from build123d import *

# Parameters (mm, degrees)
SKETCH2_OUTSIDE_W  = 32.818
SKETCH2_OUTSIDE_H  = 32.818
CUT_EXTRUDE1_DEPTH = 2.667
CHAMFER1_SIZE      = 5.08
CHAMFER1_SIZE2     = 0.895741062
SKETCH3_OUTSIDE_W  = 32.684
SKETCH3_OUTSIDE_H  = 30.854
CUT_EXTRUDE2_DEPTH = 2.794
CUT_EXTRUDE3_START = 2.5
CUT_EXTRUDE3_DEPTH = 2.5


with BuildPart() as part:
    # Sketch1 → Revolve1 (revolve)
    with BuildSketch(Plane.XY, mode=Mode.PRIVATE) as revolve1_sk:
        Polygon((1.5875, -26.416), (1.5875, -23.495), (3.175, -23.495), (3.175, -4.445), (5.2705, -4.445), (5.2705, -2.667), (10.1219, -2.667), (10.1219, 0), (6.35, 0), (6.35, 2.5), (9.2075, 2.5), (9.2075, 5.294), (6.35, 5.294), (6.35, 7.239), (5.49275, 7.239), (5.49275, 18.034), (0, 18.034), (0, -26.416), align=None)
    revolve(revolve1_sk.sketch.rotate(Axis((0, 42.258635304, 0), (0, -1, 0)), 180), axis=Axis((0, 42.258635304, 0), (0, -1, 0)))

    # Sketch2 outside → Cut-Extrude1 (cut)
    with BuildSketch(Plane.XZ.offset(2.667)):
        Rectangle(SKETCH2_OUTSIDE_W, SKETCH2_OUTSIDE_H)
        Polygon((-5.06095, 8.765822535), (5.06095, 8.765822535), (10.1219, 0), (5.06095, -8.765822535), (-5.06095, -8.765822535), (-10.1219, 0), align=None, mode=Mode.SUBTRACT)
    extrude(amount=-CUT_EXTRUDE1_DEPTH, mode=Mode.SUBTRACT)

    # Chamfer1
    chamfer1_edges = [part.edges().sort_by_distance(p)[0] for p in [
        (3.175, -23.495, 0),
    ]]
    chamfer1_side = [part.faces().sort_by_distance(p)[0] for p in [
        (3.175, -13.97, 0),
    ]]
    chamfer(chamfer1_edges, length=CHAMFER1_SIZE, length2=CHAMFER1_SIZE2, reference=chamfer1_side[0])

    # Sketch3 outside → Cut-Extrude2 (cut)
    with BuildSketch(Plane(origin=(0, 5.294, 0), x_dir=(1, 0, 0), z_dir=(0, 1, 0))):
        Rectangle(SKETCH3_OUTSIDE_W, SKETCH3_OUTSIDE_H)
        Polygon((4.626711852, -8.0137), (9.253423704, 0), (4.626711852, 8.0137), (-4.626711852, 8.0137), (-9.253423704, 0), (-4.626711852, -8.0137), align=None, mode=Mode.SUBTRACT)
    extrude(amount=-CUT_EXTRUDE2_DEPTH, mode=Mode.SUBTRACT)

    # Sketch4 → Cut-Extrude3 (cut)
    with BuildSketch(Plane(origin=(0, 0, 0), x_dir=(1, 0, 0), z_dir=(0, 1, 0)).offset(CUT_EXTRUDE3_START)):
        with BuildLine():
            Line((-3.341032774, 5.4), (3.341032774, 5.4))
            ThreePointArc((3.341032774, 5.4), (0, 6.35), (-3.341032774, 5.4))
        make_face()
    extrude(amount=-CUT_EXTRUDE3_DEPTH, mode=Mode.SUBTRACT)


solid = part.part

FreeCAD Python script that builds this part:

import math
import FreeCAD as App
import Part
import Sketcher
from FreeCAD import Vector
Q = App.Units.Quantity


def edges_at(feature, points):
    """Names of the edges that pass closest to the given points."""
    edges = feature.Shape.Edges
    near = lambda p: min(range(len(edges)), key=lambda i: edges[i].distToShape(Part.Vertex(*p))[0])
    return sorted({f"Edge{near(p) + 1}" for p in points})


def add_polygon(sketch, points):
    """Adds a closed chain of lines whose ends are joined by coincident constraints."""
    first, n = sketch.GeometryCount, len(points)
    for a, b in zip(points, points[1:] + points[:1]):
        sketch.addGeometry(Part.LineSegment(App.Vector(*a, 0), App.Vector(*b, 0)), False)
    for i in range(n):
        sketch.addConstraint(Sketcher.Constraint("Coincident", first + i, 2, first + (i + 1) % n, 1))

doc = App.newDocument("Part")
body = doc.addObject("PartDesign::Body", "Body")

# Sketch on XY plane
sketch1 = body.newObject("Sketcher::SketchObject", "Sketch")
sketch1.AttachmentSupport = (doc.getObject("XY_Plane"), [""])
sketch1.MapMode = "FlatFace"
add_polygon(sketch1, [(1.6, -26.4), (1.6, -23.5), (3.2, -23.5), (3.2, -4.4), (5.3, -4.4), (5.3, -2.7), (10.1, -2.7), (10.1, 0), (6.3, 0), (6.3, 2.5), (9.2, 2.5), (9.2, 5.3), (6.3, 5.3), (6.3, 7.2), (5.5, 7.2), (5.5, 18), (0, 18), (0, -26.4)])  # lines 0-17
sketch1.addConstraint(Sketcher.Constraint("Vertical", 0))
sketch1.addConstraint(Sketcher.Constraint("Horizontal", 1))
sketch1.addConstraint(Sketcher.Constraint("Vertical", 2))
sketch1.addConstraint(Sketcher.Constraint("Horizontal", 3))
sketch1.addConstraint(Sketcher.Constraint("Vertical", 4))
sketch1.addConstraint(Sketcher.Constraint("Horizontal", 5))
sketch1.addConstraint(Sketcher.Constraint("Vertical", 6))
sketch1.addConstraint(Sketcher.Constraint("Horizontal", 7))
sketch1.addConstraint(Sketcher.Constraint("Vertical", 8))
sketch1.addConstraint(Sketcher.Constraint("Horizontal", 9))
sketch1.addConstraint(Sketcher.Constraint("Vertical", 10))
sketch1.addConstraint(Sketcher.Constraint("Horizontal", 11))
sketch1.addConstraint(Sketcher.Constraint("Vertical", 12))
sketch1.addConstraint(Sketcher.Constraint("Horizontal", 13))
sketch1.addConstraint(Sketcher.Constraint("Vertical", 14))
sketch1.addConstraint(Sketcher.Constraint("Horizontal", 15))
sketch1.addConstraint(Sketcher.Constraint("Vertical", 16))
sketch1.addConstraint(Sketcher.Constraint("Horizontal", 17))
sketch1.addConstraint(Sketcher.Constraint("PointOnObject", 6, 2, -1))
sketch1.addConstraint(Sketcher.Constraint("PointOnObject", 15, 2, -2))
sketch1.addConstraint(Sketcher.Constraint("Vertical", 8, 2, 11, 2))
sketch1.addConstraint(Sketcher.Constraint("Equal", 1, 17))
sketch1.addConstraint(Sketcher.Constraint("DistanceY", 2, 1, 2, 2, Q("0.75 in")))
sketch1.addConstraint(Sketcher.Constraint("DistanceY", 4, 1, 4, 2, Q("0.07 in")))
sketch1.addConstraint(Sketcher.Constraint("DistanceY", 10, 1, 10, 2, Q("0.11 in")))
sketch1.addConstraint(Sketcher.Constraint("DistanceY", 16, 2, 16, 1, Q("1.75 in")))
sketch1.addConstraint(Sketcher.Constraint("DistanceX", 1, 1, 1, 2, Q("0.0625 in")))
sketch1.addConstraint(Sketcher.Constraint("DistanceX", 5, 1, 5, 2, Q("0.191 in")))
sketch1.addConstraint(Sketcher.Constraint("DistanceY", 0, 1, 0, 2, Q("0.115 in")))
sketch1.addConstraint(Sketcher.Constraint("DistanceY", 6, 1, 6, 2, Q("0.105 in")))
sketch1.addConstraint(Sketcher.Constraint("DistanceY", 14, 1, 14, 2, Q("0.425 in")))
sketch1.addConstraint(Sketcher.Constraint("DistanceX", -1, 1, 7, 2, Q("0.25 in")))
sketch1.addConstraint(Sketcher.Constraint("DistanceX", 3, 1, 3, 2, Q("0.0825 in")))
sketch1.addConstraint(Sketcher.Constraint("DistanceX", 9, 1, 9, 2, Q("0.1125 in")))
sketch1.addConstraint(Sketcher.Constraint("DistanceY", 8, 1, 8, 2, Q("2.5 mm")))
sketch1.addConstraint(Sketcher.Constraint("DistanceX", 13, 2, 13, 1, Q("0.85725 mm")))
revolution = body.newObject("PartDesign::Revolution", "Revolution")
revolution.Profile = sketch1
revolution.ReferenceAxis = (sketch1, ["V_Axis"])
revolution.Angle = 360

# Sketch on XZ plane
sketch2 = body.newObject("Sketcher::SketchObject", "Sketch001")
sketch2.AttachmentSupport = (doc.getObject("XZ_Plane"), [""])
sketch2.MapMode = "FlatFace"
sketch2.AttachmentOffset = App.Placement(Vector(0, 0, 0.105 * 25.4), App.Rotation())
add_polygon(sketch2, [(-16, 16), (-16, -16), (16, -16), (16, 16)])  # lines 0-3
add_polygon(sketch2, [(-10, 0), (-5, 9), (5, 9), (10, 0), (5, -9), (-5, -9)])  # lines 4-9
sketch2.addConstraint(Sketcher.Constraint("Vertical", 0))
sketch2.addConstraint(Sketcher.Constraint("Horizontal", 1))
sketch2.addConstraint(Sketcher.Constraint("Vertical", 2))
sketch2.addConstraint(Sketcher.Constraint("Horizontal", 3))
sketch2.addConstraint(Sketcher.Constraint("Horizontal", 5))
sketch2.addConstraint(Sketcher.Constraint("Horizontal", 8))
sketch2.addConstraint(Sketcher.Constraint("Symmetric", 0, 2, 2, 2, -1, 1))
sketch2.addConstraint(Sketcher.Constraint("Symmetric", 4, 2, 7, 2, -1, 1))
sketch2.addConstraint(Sketcher.Constraint("Symmetric", 6, 2, 9, 2, -1, 1))
sketch2.addConstraint(Sketcher.Constraint("PointOnObject", 6, 2, -1))
sketch2.addConstraint(Sketcher.Constraint("Parallel", 6, 9))
sketch2.addConstraint(Sketcher.Constraint("Vertical", 5, 2, 7, 2))
sketch2.addConstraint(Sketcher.Constraint("Equal", 3, 0))
sketch2.addConstraint(Sketcher.Constraint("Angle", 4, Q("60 deg")))
sketch2.addConstraint(Sketcher.Constraint("DistanceX", 5, 1, 5, 2, Q("0.3985 in")))
sketch2.addConstraint(Sketcher.Constraint("Distance", 4, Q("0.3985 in")))
sketch2.addConstraint(Sketcher.Constraint("DistanceX", 1, 1, 1, 2, Q("32.818 mm")))
pocket1 = body.newObject("PartDesign::Pocket", "Pocket")
pocket1.Profile = sketch2
pocket1.Length = Q("0.105 in")
doc.recompute()

chamfer = body.newObject("PartDesign::Chamfer", "Chamfer")
chamfer.Base = (pocket1, edges_at(pocket1, [(3.175, -23.495, 0)]))
chamfer.ChamferType = "Two distances"
chamfer.Size = Q("0.2 in")
chamfer.Size2 = 0.895741
chamfer.FlipDirection = True

# Sketch on XZ plane
sketch3 = body.newObject("Sketcher::SketchObject", "Sketch002")
sketch3.AttachmentSupport = (doc.getObject("XZ_Plane"), [""])
sketch3.MapMode = "FlatFace"
sketch3.AttachmentOffset = App.Placement(Vector(0, 0, -5.294), App.Rotation())
add_polygon(sketch3, [(-16, -15), (-16, 15), (16, 15), (16, -15)])  # lines 0-3
add_polygon(sketch3, [(9, 0), (5, 8), (-5, 8), (-9, 0), (-5, -8), (5, -8)])  # lines 4-9
sketch3.addConstraint(Sketcher.Constraint("Vertical", 0))
sketch3.addConstraint(Sketcher.Constraint("Horizontal", 1))
sketch3.addConstraint(Sketcher.Constraint("Vertical", 2))
sketch3.addConstraint(Sketcher.Constraint("Horizontal", 3))
sketch3.addConstraint(Sketcher.Constraint("Horizontal", 5))
sketch3.addConstraint(Sketcher.Constraint("Horizontal", 8))
sketch3.addConstraint(Sketcher.Constraint("Symmetric", 0, 2, 2, 2, -1, 1))
sketch3.addConstraint(Sketcher.Constraint("Symmetric", 4, 2, 7, 2, -1, 1))
sketch3.addConstraint(Sketcher.Constraint("Symmetric", 6, 2, 9, 2, -1, 1))
sketch3.addConstraint(Sketcher.Constraint("PointOnObject", 6, 2, -1))
sketch3.addConstraint(Sketcher.Constraint("Parallel", 6, 9))
sketch3.addConstraint(Sketcher.Constraint("Vertical", 5, 2, 7, 2))
sketch3.addConstraint(Sketcher.Constraint("Angle", 4, Q("120 deg")))
sketch3.addConstraint(Sketcher.Constraint("DistanceY", 7, 2, 5, 2, Q("0.631 in")))
sketch3.addConstraint(Sketcher.Constraint("DistanceX", 1, 1, 1, 2, Q("32.684 mm")))
sketch3.addConstraint(Sketcher.Constraint("DistanceY", 0, 1, 0, 2, Q("30.854 mm")))
sketch3.addConstraint(Sketcher.Constraint("DistanceX", 5, 2, 5, 1, Q("9.253424 mm")))
pocket2 = body.newObject("PartDesign::Pocket", "Pocket001")
pocket2.Profile = sketch3
pocket2.Length = Q("0.11 in")
pocket2.Reversed = True

# Sketch on XZ plane
sketch4 = body.newObject("Sketcher::SketchObject", "Sketch003")
sketch4.AttachmentSupport = (doc.getObject("XZ_Plane"), [""])
sketch4.MapMode = "FlatFace"
sketch4.AttachmentOffset = App.Placement(Vector(0, 0, -2.5), App.Rotation())
sketch4.addGeometry(Part.LineSegment(Vector(-3, -5, 0), Vector(3, -5, 0)), False)
sketch4.addGeometry(Part.ArcOfCircle(Part.Circle(Vector(0, 0, 0), Vector(0, 0, 1), 6), math.radians(-122), math.radians(-58)), False)
sketch4.addConstraint(Sketcher.Constraint("Coincident", 0, 1, 1, 1))
sketch4.addConstraint(Sketcher.Constraint("Coincident", 1, 2, 0, 2))
sketch4.addConstraint(Sketcher.Constraint("Horizontal", 0))
sketch4.addConstraint(Sketcher.Constraint("Coincident", 1, 3, -1, 1))
sketch4.addConstraint(Sketcher.Constraint("Radius", 1, Q("0.25 in")))
sketch4.addConstraint(Sketcher.Constraint("DistanceY", 0, 1, -1, 1, Q("5.4 mm")))
pocket3 = body.newObject("PartDesign::Pocket", "Pocket002")
pocket3.Profile = sketch4
pocket3.Length = 2.5
pocket3.Reversed = True

doc.recompute()
